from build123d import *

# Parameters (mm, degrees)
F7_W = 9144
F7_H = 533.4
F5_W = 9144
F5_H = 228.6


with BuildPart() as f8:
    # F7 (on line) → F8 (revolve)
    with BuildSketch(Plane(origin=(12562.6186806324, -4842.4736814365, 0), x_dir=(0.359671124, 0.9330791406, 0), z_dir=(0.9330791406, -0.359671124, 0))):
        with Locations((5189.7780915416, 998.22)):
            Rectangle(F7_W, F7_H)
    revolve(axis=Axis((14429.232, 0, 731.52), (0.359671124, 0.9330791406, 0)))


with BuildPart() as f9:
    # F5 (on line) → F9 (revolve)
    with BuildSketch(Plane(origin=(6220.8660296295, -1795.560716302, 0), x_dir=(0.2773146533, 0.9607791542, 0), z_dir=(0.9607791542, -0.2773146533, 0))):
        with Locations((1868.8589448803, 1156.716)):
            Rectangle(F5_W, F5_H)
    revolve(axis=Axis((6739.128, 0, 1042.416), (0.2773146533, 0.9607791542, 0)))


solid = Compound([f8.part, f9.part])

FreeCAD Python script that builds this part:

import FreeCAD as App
import Part
import Sketcher
Q = App.Units.Quantity


def add_polygon(sketch, points):
    """Adds a closed chain of lines whose ends are joined by coincident constraints."""
    first, n = sketch.GeometryCount, len(points)
    for a, b in zip(points, points[1:] + points[:1]):
        sketch.addGeometry(Part.LineSegment(App.Vector(*a, 0), App.Vector(*b, 0)), False)
    for i in range(n):
        sketch.addConstraint(Sketcher.Constraint("Coincident", first + i, 2, first + (i + 1) % n, 1))

doc = App.newDocument("Part")
params = doc.addObject("Spreadsheet::Sheet", "Params")
for row, (alias, value) in enumerate([
    ("sketch1_height", "21 in"),
    ("revolution_angle", "360 deg"),
    ("sketch2_width", "359.9999998 in"),
    ("sketch2_height", "9 in"),
    ("revolution2_angle", "360 deg"),
], start=1):
    params.set(f"A{row}", alias)
    params.set(f"B{row}", "=" + value)
    params.setAlias(f"B{row}", alias)

body = doc.addObject("PartDesign::Body", "Body")

# Sketch on an angled plane
sketch1 = body.newObject("Sketcher::SketchObject", "Sketch")
sketch1.Placement = App.Placement(App.Vector(12562.618681, -4842.473681, 0), App.Rotation(App.Vector(0.359671124, 0.933079141, 0), App.Vector(0, 0, 1.000000001), App.Vector(0.933079141, -0.359671124, 0), "ZXY"))
add_polygon(sketch1, [(618, 1265), (618, 732), (9762, 732), (9762, 1265)])  # lines 0-3
sketch1.addGeometry(Part.LineSegment(App.Vector(618, 732, 0), App.Vector(9762, 732, 0)), True)  # axis
sketch1.addConstraint([
    Sketcher.Constraint("Vertical", 0),
    Sketcher.Constraint("Horizontal", 1),
    Sketcher.Constraint("Vertical", 2),
    Sketcher.Constraint("Horizontal", 3),
    Sketcher.Constraint("Horizontal", 4),
    Sketcher.Constraint("Coincident", 4, 1, 0, 2),
    Sketcher.Constraint("DistanceY", 0, 2, 0, 1, Q("21 in")),
    Sketcher.Constraint("DistanceY", -1, 1, 0, 2, Q("28.8 in")),
    Sketcher.Constraint("DistanceX", -1, 1, 1, 2, 9761.778099),
    Sketcher.Constraint("DistanceX", 1, 1, 1, 2, 9144.000007),
    Sketcher.Constraint("DistanceX", 4, 1, 4, 2, 9144.000022),
])
sketch1.setExpression("Constraints[10]", "Params.sketch1_height")
revolution = body.newObject("PartDesign::Revolution", "Revolution")
revolution.Profile = sketch1
revolution.ReferenceAxis = (sketch1, ["Axis0"])
revolution.setExpression("Angle", "Params.revolution_angle")
body2 = doc.addObject("PartDesign::Body", "Body001")

# Sketch on an angled plane
sketch2 = body2.newObject("Sketcher::SketchObject", "Sketch001")
sketch2.Placement = App.Placement(App.Vector(6220.86603, -1795.560716, 0), App.Rotation(App.Vector(0.277314653, 0.960779154, 0), App.Vector(0, 0, 1), App.Vector(0.960779154, -0.277314653, 0), "ZXY"))
add_polygon(sketch2, [(-2703, 1271), (-2703, 1042), (6441, 1042), (6441, 1271)])  # lines 0-3
sketch2.addGeometry(Part.LineSegment(App.Vector(-2703, 1042, 0), App.Vector(6441, 1042, 0)), True)  # axis
sketch2.addConstraint([
    Sketcher.Constraint("Vertical", 0),
    Sketcher.Constraint("Horizontal", 1),
    Sketcher.Constraint("Vertical", 2),
    Sketcher.Constraint("Horizontal", 3),
    Sketcher.Constraint("Horizontal", 4),
    Sketcher.Constraint("Coincident", 4, 1, 0, 2),
    Sketcher.Constraint("DistanceX", 1, 1, 1, 2, Q("359.9999998 in")),
    Sketcher.Constraint("DistanceY", 0, 2, 0, 1, Q("9 in")),
    Sketcher.Constraint("DistanceY", -1, 1, 0, 2, Q("41.04 in")),
    Sketcher.Constraint("DistanceX", 4, 1, 4, 2, 9143.999987),
    Sketcher.Constraint("DistanceX", -1, 1, 1, 2, 6440.858942),
])
sketch2.setExpression("Constraints[10]", "Params.sketch2_width")
sketch2.setExpression("Constraints[11]", "Params.sketch2_height")
revolution2 = body2.newObject("PartDesign::Revolution", "Revolution001")
revolution2.Profile = sketch2
revolution2.ReferenceAxis = (sketch2, ["Axis0"])
revolution2.setExpression("Angle", "Params.revolution2_angle")

doc.recompute()
